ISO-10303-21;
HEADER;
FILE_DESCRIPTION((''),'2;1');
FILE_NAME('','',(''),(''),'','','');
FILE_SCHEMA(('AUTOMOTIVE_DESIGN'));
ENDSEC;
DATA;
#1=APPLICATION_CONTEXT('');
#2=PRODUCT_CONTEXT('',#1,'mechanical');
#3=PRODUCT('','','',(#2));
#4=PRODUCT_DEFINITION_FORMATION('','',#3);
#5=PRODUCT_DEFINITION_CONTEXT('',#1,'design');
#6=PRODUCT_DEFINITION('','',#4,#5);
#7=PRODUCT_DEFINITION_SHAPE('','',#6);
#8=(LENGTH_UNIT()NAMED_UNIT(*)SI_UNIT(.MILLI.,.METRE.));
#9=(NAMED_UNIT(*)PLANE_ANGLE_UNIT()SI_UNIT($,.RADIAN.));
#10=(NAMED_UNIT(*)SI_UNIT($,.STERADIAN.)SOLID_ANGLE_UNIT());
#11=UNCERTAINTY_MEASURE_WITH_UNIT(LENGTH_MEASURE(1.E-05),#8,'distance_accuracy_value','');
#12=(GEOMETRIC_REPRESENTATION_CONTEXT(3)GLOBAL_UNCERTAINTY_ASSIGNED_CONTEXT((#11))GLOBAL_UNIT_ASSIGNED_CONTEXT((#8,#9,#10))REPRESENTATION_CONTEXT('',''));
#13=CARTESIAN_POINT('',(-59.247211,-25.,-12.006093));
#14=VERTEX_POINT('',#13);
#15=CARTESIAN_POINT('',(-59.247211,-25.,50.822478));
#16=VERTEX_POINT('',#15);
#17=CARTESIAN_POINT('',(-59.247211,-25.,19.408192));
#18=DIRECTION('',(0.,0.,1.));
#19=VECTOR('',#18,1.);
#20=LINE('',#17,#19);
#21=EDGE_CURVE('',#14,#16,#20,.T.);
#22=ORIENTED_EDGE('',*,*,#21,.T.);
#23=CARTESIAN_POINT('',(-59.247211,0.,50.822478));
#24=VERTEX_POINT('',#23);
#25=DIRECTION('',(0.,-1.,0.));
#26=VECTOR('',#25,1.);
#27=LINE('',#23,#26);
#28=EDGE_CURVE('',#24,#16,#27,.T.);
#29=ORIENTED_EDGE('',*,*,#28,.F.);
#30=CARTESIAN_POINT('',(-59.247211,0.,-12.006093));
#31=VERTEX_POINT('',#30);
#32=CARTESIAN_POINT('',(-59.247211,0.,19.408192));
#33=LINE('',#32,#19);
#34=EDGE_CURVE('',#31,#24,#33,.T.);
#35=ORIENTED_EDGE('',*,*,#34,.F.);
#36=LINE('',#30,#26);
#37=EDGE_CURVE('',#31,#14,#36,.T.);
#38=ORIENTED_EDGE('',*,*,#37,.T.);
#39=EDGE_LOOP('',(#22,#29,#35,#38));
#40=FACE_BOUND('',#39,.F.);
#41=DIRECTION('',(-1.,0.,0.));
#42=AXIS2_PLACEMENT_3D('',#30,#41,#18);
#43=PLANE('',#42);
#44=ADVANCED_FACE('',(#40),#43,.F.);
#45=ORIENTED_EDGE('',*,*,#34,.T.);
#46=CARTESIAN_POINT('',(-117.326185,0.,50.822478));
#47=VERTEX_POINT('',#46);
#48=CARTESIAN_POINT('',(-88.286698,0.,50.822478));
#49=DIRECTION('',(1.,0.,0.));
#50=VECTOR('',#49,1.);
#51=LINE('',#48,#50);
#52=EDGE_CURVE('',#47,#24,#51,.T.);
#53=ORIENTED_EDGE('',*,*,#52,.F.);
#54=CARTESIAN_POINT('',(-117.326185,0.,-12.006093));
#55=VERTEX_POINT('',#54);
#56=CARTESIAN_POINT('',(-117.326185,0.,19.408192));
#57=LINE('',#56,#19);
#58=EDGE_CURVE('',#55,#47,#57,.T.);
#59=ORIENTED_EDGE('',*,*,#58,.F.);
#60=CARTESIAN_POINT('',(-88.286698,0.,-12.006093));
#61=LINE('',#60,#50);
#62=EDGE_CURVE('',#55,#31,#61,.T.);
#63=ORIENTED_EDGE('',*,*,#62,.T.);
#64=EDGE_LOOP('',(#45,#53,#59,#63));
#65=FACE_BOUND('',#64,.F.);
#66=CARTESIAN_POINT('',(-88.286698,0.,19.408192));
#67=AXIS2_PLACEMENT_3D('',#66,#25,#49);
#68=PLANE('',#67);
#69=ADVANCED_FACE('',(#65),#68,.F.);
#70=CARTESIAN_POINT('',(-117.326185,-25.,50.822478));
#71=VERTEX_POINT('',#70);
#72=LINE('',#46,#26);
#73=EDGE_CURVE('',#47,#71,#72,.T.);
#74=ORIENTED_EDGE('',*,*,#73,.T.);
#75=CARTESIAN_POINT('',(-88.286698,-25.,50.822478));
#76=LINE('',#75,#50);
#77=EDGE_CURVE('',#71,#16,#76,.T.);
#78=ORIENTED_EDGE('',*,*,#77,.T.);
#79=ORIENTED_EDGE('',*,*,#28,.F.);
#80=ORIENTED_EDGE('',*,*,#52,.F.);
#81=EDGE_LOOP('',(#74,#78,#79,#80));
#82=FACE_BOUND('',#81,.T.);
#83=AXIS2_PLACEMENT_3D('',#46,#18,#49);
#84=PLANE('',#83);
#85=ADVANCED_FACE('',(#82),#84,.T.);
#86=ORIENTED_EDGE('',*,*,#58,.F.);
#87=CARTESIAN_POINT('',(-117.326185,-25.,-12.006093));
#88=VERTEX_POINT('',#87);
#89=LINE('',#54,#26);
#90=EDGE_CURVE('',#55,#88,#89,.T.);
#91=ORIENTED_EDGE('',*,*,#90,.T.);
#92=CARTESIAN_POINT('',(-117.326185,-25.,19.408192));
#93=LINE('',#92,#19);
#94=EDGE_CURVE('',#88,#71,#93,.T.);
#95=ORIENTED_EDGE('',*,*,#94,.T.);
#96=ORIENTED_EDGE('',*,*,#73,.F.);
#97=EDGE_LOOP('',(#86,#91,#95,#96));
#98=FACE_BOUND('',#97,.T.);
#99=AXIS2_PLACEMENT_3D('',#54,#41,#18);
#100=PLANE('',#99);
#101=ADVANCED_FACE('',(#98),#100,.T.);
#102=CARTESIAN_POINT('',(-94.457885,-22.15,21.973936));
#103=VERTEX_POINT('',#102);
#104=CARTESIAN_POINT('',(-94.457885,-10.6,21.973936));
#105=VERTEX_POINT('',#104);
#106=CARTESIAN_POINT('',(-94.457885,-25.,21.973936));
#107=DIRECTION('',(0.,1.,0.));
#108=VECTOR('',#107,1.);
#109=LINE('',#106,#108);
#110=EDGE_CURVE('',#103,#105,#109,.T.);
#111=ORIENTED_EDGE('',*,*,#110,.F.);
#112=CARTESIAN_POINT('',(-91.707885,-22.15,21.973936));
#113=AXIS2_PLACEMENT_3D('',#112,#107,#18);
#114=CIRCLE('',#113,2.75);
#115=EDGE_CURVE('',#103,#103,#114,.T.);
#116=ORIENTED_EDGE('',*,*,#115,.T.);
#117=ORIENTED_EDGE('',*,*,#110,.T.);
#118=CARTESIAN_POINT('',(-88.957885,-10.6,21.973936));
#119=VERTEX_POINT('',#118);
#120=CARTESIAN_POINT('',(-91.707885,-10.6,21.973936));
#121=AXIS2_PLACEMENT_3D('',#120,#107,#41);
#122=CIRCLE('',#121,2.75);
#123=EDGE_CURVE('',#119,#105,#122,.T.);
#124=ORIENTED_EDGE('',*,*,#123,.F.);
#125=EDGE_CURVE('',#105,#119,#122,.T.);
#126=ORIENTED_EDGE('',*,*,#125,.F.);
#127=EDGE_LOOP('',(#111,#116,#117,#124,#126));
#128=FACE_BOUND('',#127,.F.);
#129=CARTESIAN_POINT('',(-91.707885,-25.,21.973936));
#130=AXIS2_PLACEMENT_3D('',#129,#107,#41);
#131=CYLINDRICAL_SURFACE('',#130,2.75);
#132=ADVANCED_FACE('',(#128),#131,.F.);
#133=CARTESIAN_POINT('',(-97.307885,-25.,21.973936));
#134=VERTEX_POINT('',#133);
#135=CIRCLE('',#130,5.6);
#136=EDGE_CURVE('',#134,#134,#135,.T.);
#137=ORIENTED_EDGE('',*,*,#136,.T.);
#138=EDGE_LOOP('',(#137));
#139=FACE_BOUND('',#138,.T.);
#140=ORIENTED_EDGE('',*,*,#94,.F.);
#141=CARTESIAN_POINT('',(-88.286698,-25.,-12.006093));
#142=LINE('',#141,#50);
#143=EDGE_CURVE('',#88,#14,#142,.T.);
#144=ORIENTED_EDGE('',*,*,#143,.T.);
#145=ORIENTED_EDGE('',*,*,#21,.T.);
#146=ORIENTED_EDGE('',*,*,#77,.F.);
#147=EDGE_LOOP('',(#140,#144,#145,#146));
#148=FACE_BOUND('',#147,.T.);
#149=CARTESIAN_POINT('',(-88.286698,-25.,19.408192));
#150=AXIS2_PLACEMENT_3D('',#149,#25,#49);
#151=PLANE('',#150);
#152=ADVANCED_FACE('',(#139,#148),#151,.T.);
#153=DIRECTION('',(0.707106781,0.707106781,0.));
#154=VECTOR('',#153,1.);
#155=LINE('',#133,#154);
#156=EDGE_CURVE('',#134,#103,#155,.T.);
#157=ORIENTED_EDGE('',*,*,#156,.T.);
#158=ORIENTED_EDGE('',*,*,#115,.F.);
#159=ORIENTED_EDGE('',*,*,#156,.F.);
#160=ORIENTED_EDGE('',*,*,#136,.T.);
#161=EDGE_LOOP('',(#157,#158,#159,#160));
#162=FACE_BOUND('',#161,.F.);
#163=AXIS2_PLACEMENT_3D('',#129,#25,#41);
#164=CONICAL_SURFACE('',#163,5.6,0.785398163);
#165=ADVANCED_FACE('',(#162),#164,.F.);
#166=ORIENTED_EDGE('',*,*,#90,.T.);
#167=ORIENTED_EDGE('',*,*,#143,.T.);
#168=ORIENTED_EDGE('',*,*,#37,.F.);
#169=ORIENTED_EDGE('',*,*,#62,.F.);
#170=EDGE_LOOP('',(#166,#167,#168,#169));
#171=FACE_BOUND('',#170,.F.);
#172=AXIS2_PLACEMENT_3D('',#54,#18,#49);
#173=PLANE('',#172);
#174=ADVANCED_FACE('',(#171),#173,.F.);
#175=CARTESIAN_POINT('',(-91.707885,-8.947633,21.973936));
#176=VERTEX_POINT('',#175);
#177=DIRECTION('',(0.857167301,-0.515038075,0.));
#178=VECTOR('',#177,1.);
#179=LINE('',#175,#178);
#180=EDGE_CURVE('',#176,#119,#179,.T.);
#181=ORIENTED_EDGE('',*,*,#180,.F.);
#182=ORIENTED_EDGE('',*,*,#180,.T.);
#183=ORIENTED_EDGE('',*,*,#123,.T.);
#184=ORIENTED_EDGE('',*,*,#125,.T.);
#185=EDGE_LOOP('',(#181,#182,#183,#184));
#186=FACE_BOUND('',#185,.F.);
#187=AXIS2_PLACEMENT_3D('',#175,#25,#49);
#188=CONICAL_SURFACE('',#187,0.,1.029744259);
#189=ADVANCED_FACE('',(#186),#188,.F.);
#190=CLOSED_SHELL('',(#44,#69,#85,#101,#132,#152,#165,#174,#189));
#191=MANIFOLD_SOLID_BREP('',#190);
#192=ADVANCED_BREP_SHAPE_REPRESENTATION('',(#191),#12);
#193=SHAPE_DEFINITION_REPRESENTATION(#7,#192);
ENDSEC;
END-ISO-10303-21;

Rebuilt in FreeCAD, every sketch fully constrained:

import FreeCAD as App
import Part
import Sketcher
from FreeCAD import Vector
Q = App.Units.Quantity


def add_polygon(sketch, points):
    """Adds a closed chain of lines whose ends are joined by coincident constraints."""
    first, n = sketch.GeometryCount, len(points)
    for a, b in zip(points, points[1:] + points[:1]):
        sketch.addGeometry(Part.LineSegment(App.Vector(*a, 0), App.Vector(*b, 0)), False)
    for i in range(n):
        sketch.addConstraint(Sketcher.Constraint("Coincident", first + i, 2, first + (i + 1) % n, 1))

doc = App.newDocument("Part")
body = doc.addObject("PartDesign::Body", "Body")

# Sketch on XZ plane
sketch1 = body.newObject("Sketcher::SketchObject", "Sketch")
sketch1.AttachmentSupport = (doc.getObject("XZ_Plane"), [""])
sketch1.MapMode = "FlatFace"
add_polygon(sketch1, [(-117.326185, 50.822478), (-117.326185, -12.006093), (-59.247211, -12.006093), (-59.247211, 50.822478)])  # lines 0-3
sketch1.addConstraint([
    Sketcher.Constraint("Vertical", 0),
    Sketcher.Constraint("Horizontal", 1),
    Sketcher.Constraint("Vertical", 2),
    Sketcher.Constraint("Horizontal", 3),
    Sketcher.Constraint("DistanceY", 0, 2, 0, 1, Q("62.828571 mm")),
    Sketcher.Constraint("DistanceX", 1, 1, 1, 2, Q("58.078974 mm")),
    Sketcher.Constraint("DistanceX", 1, 2, -1, 1, Q("59.247211 mm")),
    Sketcher.Constraint("DistanceY", 0, 2, -1, 1, Q("12.006093 mm")),
])
pad1 = body.newObject("PartDesign::Pad", "Pad")
pad1.Profile = sketch1
pad1.Length = 25

# Sketch on XZ plane
sketch2 = body.newObject("Sketcher::SketchObject", "Sketch001")
sketch2.AttachmentSupport = (doc.getObject("XZ_Plane"), [""])
sketch2.MapMode = "FlatFace"
sketch2.AttachmentOffset = App.Placement(Vector(0, 0, 25), App.Rotation())
sketch2.addGeometry(Part.Circle(Vector(-91.707885, 21.973936, 0), Vector(0, 0, 1), 2.75), False)
sketch2.addConstraint([
    Sketcher.Constraint("Diameter", 0, Q("5.5 mm")),
    Sketcher.Constraint("DistanceX", 0, 3, -1, 1, Q("91.707885 mm")),
    Sketcher.Constraint("DistanceY", -1, 1, 0, 3, Q("21.973936 mm")),
])
doc.recompute()
hole = body.newObject("PartDesign::Hole", "Hole")
hole.Profile = sketch2
hole.ThreadType = "None"
hole.Diameter = 5.5
hole.DepthType = "Dimension"
hole.Depth = 14.4
hole.DrillPoint = "Angled"
hole.DrillPointAngle = 118
hole.HoleCutType = "Countersink"
hole.HoleCutDiameter = 11.2
hole.HoleCutCountersinkAngle = 90

doc.recompute()
